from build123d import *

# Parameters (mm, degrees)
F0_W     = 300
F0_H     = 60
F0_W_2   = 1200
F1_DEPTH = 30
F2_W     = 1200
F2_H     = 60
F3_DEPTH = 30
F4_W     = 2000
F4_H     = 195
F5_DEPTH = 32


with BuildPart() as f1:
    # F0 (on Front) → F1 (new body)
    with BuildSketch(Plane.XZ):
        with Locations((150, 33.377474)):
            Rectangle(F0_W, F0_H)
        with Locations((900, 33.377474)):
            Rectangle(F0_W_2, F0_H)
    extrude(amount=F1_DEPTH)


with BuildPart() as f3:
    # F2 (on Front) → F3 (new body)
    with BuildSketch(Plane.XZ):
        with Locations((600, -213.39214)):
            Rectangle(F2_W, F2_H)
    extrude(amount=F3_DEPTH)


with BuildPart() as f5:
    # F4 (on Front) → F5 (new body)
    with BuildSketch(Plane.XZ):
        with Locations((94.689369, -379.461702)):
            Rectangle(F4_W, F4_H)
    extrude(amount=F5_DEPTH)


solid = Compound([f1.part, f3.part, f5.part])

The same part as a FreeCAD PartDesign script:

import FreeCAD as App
import Part
import Sketcher

doc = App.newDocument("Part")
body = doc.addObject("PartDesign::Body", "Body")

# Sketch on XZ plane
sketch1 = body.newObject("Sketcher::SketchObject", "Sketch")
sketch1.AttachmentSupport = (doc.getObject("XZ_Plane"), [""])
sketch1.MapMode = "FlatFace"
sketch1.addGeometry([
    Part.LineSegment(App.Vector(0, 63.377474, 0), App.Vector(0, 3.377474, 0)),
    Part.LineSegment(App.Vector(0, 3.377474, 0), App.Vector(1500, 3.377474, 0)),
    Part.LineSegment(App.Vector(1500, 3.377474, 0), App.Vector(1500, 63.377474, 0)),
    Part.LineSegment(App.Vector(1500, 63.377474, 0), App.Vector(0, 63.377474, 0)),
], False)
sketch1.addConstraint([
    Sketcher.Constraint("Coincident", 0, 2, 1, 1),
    Sketcher.Constraint("Coincident", 1, 2, 2, 1),
    Sketcher.Constraint("Coincident", 2, 2, 3, 1),
    Sketcher.Constraint("Coincident", 3, 2, 0, 1),
    Sketcher.Constraint("Vertical", 0),
    Sketcher.Constraint("Horizontal", 1),
    Sketcher.Constraint("Vertical", 2),
    Sketcher.Constraint("Horizontal", 3),
    Sketcher.Constraint("PointOnObject", 0, 2, -2),
    Sketcher.Constraint("DistanceX", 1, 1, 1, 2, 1500.0),
    Sketcher.Constraint("DistanceY", 0, 2, 0, 1, 60.0),
    Sketcher.Constraint("DistanceY", -1, 1, 0, 2, 3.377474),
])
pad1 = body.newObject("PartDesign::Pad", "Pad")
pad1.Profile = sketch1
pad1.Length = 30
body2 = doc.addObject("PartDesign::Body", "Body001")

# Sketch on XZ plane
sketch2 = body2.newObject("Sketcher::SketchObject", "Sketch001")
sketch2.AttachmentSupport = (doc.getObject("XZ_Plane001"), [""])
sketch2.MapMode = "FlatFace"
sketch2.addGeometry([
    Part.LineSegment(App.Vector(0, -183.39214, 0), App.Vector(0, -243.39214, 0)),
    Part.LineSegment(App.Vector(0, -243.39214, 0), App.Vector(1200, -243.39214, 0)),
    Part.LineSegment(App.Vector(1200, -243.39214, 0), App.Vector(1200, -183.39214, 0)),
    Part.LineSegment(App.Vector(1200, -183.39214, 0), App.Vector(0, -183.39214, 0)),
], False)
sketch2.addConstraint([
    Sketcher.Constraint("Coincident", 0, 2, 1, 1),
    Sketcher.Constraint("Coincident", 1, 2, 2, 1),
    Sketcher.Constraint("Coincident", 2, 2, 3, 1),
    Sketcher.Constraint("Coincident", 3, 2, 0, 1),
    Sketcher.Constraint("Vertical", 0),
    Sketcher.Constraint("Horizontal", 1),
    Sketcher.Constraint("Vertical", 2),
    Sketcher.Constraint("Horizontal", 3),
    Sketcher.Constraint("PointOnObject", 0, 2, -2),
    Sketcher.Constraint("DistanceX", 1, 1, 1, 2, 1200.0),
    Sketcher.Constraint("DistanceY", 0, 2, 0, 1, 60.0),
    Sketcher.Constraint("DistanceY", 0, 2, -1, 1, 243.39214),
])
pad2 = body2.newObject("PartDesign::Pad", "Pad001")
pad2.Profile = sketch2
pad2.Length = 30
body3 = doc.addObject("PartDesign::Body", "Body002")

# Sketch on XZ plane
sketch3 = body3.newObject("Sketcher::SketchObject", "Sketch002")
sketch3.AttachmentSupport = (doc.getObject("XZ_Plane002"), [""])
sketch3.MapMode = "FlatFace"
sketch3.addGeometry([
    Part.LineSegment(App.Vector(-905.310631, -281.961702, 0), App.Vector(-905.310631, -476.961702, 0)),
    Part.LineSegment(App.Vector(-905.310631, -476.961702, 0), App.Vector(1094.689369, -476.961702, 0)),
    Part.LineSegment(App.Vector(1094.689369, -476.961702, 0), App.Vector(1094.689369, -281.961702, 0)),
    Part.LineSegment(App.Vector(1094.689369, -281.961702, 0), App.Vector(-905.310631, -281.961702, 0)),
], False)
sketch3.addConstraint([
    Sketcher.Constraint("Coincident", 0, 2, 1, 1),
    Sketcher.Constraint("Coincident", 1, 2, 2, 1),
    Sketcher.Constraint("Coincident", 2, 2, 3, 1),
    Sketcher.Constraint("Coincident", 3, 2, 0, 1),
    Sketcher.Constraint("Vertical", 0),
    Sketcher.Constraint("Horizontal", 1),
    Sketcher.Constraint("Vertical", 2),
    Sketcher.Constraint("Horizontal", 3),
    Sketcher.Constraint("DistanceX", 1, 1, 1, 2, 2000.0),
    Sketcher.Constraint("DistanceY", 0, 2, 0, 1, 195.0),
    Sketcher.Constraint("DistanceY", 0, 2, -1, 1, 476.961702),
    Sketcher.Constraint("DistanceX", 0, 2, -1, 1, 905.310631),
])
pad3 = body3.newObject("PartDesign::Pad", "Pad002")
pad3.Profile = sketch3
pad3.Length = 32

doc.recompute()
